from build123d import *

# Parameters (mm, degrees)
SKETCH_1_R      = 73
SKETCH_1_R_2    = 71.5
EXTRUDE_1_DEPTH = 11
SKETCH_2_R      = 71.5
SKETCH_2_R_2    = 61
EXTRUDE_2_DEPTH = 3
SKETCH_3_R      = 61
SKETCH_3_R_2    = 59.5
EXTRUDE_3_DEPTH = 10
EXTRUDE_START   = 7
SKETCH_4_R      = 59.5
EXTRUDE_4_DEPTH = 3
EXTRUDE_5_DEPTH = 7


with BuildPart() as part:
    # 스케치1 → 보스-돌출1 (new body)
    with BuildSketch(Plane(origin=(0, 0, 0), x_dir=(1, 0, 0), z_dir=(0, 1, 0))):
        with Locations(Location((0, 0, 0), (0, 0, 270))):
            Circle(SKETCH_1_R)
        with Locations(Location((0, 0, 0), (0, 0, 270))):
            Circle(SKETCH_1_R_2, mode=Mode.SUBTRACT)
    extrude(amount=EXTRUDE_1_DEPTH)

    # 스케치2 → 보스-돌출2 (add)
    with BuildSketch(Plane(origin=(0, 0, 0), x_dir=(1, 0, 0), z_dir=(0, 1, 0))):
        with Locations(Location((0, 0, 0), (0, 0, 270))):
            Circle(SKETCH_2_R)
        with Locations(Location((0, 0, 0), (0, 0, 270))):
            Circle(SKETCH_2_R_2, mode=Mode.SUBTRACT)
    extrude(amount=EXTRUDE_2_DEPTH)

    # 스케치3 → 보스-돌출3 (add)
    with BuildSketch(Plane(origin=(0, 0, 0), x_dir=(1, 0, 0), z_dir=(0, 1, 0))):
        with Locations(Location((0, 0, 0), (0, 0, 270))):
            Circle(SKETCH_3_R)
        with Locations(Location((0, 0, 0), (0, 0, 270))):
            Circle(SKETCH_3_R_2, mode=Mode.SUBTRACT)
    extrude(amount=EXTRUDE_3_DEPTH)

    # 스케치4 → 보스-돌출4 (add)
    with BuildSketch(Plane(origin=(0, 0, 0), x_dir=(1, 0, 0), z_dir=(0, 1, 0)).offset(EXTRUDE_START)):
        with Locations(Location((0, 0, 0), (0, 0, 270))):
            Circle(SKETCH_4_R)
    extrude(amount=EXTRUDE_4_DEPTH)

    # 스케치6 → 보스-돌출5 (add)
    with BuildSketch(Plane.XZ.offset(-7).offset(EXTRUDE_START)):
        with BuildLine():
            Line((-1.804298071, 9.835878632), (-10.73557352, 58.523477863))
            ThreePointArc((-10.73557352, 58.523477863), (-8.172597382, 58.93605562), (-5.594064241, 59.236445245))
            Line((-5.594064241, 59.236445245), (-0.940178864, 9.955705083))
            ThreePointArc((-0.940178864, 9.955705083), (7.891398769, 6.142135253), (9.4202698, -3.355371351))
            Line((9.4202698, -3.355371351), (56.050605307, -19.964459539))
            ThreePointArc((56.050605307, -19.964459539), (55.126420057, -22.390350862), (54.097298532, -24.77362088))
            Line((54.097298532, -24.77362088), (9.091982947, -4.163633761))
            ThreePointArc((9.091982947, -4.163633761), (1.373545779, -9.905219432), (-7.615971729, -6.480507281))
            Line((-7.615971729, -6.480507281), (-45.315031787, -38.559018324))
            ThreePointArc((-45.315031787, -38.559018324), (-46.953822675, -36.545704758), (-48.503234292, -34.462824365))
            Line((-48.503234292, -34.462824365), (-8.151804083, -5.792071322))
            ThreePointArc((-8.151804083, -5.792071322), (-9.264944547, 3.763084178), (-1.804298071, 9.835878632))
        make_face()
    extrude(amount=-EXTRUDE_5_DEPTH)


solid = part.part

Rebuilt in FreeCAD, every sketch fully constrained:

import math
import FreeCAD as App
import Part
import Sketcher

V = App.Vector
Q = App.Units.Quantity

doc = App.newDocument("Part")
body = doc.addObject("PartDesign::Body", "Body")

# Sketch on XZ plane
sketch1 = body.newObject("Sketcher::SketchObject", "Sketch")
sketch1.AttachmentSupport = (doc.getObject("XZ_Plane"), [""])
sketch1.MapMode = "FlatFace"
sketch1.addGeometry([
    Part.Circle(V(0, 0, 0), V(0, 0, 1), 73),
    Part.Circle(V(0, 0, 0), V(0, 0, 1), 72),
], False)
sketch1.addConstraint([
    Sketcher.Constraint("Coincident", 0, 3, -1, 1),
    Sketcher.Constraint("Coincident", 1, 3, -1, 1),
    Sketcher.Constraint("Diameter", 0, Q("146 mm")),
    Sketcher.Constraint("Diameter", 1, Q("143 mm")),
])
pad1 = body.newObject("PartDesign::Pad", "Pad")
pad1.Profile = sketch1
pad1.Length = 11
pad1.Reversed = True

# Sketch on XZ plane
sketch2 = body.newObject("Sketcher::SketchObject", "Sketch001")
sketch2.AttachmentSupport = (doc.getObject("XZ_Plane"), [""])
sketch2.MapMode = "FlatFace"
sketch2.addGeometry([
    Part.Circle(V(0, 0, 0), V(0, 0, 1), 72),
    Part.Circle(V(0, 0, 0), V(0, 0, 1), 61),
], False)
sketch2.addConstraint([
    Sketcher.Constraint("Coincident", 0, 3, -1, 1),
    Sketcher.Constraint("Coincident", 1, 3, -1, 1),
    Sketcher.Constraint("Diameter", 0, Q("143 mm")),
    Sketcher.Constraint("Diameter", 1, Q("122 mm")),
])
pad2 = body.newObject("PartDesign::Pad", "Pad001")
pad2.Profile = sketch2
pad2.Length = 3
pad2.Reversed = True

# Sketch on XZ plane
sketch3 = body.newObject("Sketcher::SketchObject", "Sketch002")
sketch3.AttachmentSupport = (doc.getObject("XZ_Plane"), [""])
sketch3.MapMode = "FlatFace"
sketch3.addGeometry([
    Part.Circle(V(0, 0, 0), V(0, 0, 1), 61),
    Part.Circle(V(0, 0, 0), V(0, 0, 1), 60),
], False)
sketch3.addConstraint([
    Sketcher.Constraint("Coincident", 0, 3, -1, 1),
    Sketcher.Constraint("Coincident", 1, 3, -1, 1),
    Sketcher.Constraint("Diameter", 0, Q("122 mm")),
    Sketcher.Constraint("Diameter", 1, Q("119 mm")),
])
pad3 = body.newObject("PartDesign::Pad", "Pad002")
pad3.Profile = sketch3
pad3.Length = 10
pad3.Reversed = True

# Sketch on XZ plane
sketch4 = body.newObject("Sketcher::SketchObject", "Sketch003")
sketch4.AttachmentSupport = (doc.getObject("XZ_Plane"), [""])
sketch4.MapMode = "FlatFace"
sketch4.AttachmentOffset = App.Placement(V(0, 0, -7), App.Rotation())
sketch4.addGeometry(Part.Circle(V(0, 0, 0), V(0, 0, 1), 60), False)
sketch4.addConstraint([
    Sketcher.Constraint("Coincident", 0, 3, -1, 1),
    Sketcher.Constraint("Diameter", 0, Q("119 mm")),
])
pad4 = body.newObject("PartDesign::Pad", "Pad003")
pad4.Profile = sketch4
pad4.Length = 3
pad4.Reversed = True

# Sketch on XZ plane
sketch5 = body.newObject("Sketcher::SketchObject", "Sketch004")
sketch5.AttachmentSupport = (doc.getObject("XZ_Plane"), [""])
sketch5.MapMode = "FlatFace"
sketch5.addGeometry([
    Part.LineSegment(V(-11, 59, 0), V(-2, 10, 0)),  # 0
    Part.ArcOfCircle(Part.Circle(V(0, 0, 0), V(0, 0, 1), 10), math.radians(100), math.radians(215)),  # 1
    Part.LineSegment(V(-8, -6, 0), V(-49, -34, 0)),  # 2
    Part.ArcOfCircle(Part.Circle(V(0, 0, 0), V(0, 0, 1), 59), math.radians(-144.61), math.radians(-139.61)),  # 3
    Part.LineSegment(V(-45, -39, 0), V(-8, -6, 0)),  # 4
    Part.ArcOfCircle(Part.Circle(V(0, 0, 0), V(0, 0, 1), 10), math.radians(-140), math.radians(-25)),  # 5
    Part.LineSegment(V(9, -4, 0), V(54, -25, 0)),  # 6
    Part.ArcOfCircle(Part.Circle(V(0, 0, 0), V(0, 0, 1), 59), math.radians(-24.61), math.radians(-19.61)),  # 7
    Part.LineSegment(V(56, -20, 0), V(9, -3, 0)),  # 8
    Part.ArcOfCircle(Part.Circle(V(0, 0, 0), V(0, 0, 1), 10), math.radians(-20), math.radians(95)),  # 9
    Part.LineSegment(V(-1, 10, 0), V(-6, 59, 0)),  # 10
    Part.ArcOfCircle(Part.Circle(V(0, 0, 0), V(0, 0, 1), 59), math.radians(95.39), math.radians(100.39)),  # 11
], False)
sketch5.addConstraint([
    Sketcher.Constraint("Coincident", 0, 2, 1, 1),
    Sketcher.Constraint("Coincident", 1, 2, 2, 1),
    Sketcher.Constraint("Coincident", 2, 2, 3, 1),
    Sketcher.Constraint("Coincident", 3, 2, 4, 1),
    Sketcher.Constraint("Coincident", 4, 2, 5, 1),
    Sketcher.Constraint("Coincident", 5, 2, 6, 1),
    Sketcher.Constraint("Coincident", 6, 2, 7, 1),
    Sketcher.Constraint("Coincident", 7, 2, 8, 1),
    Sketcher.Constraint("Coincident", 8, 2, 9, 1),
    Sketcher.Constraint("Coincident", 9, 2, 10, 1),
    Sketcher.Constraint("Coincident", 10, 2, 11, 1),
    Sketcher.Constraint("Coincident", 11, 2, 0, 1),
    Sketcher.Constraint("Coincident", 1, 3, -1, 1),
    Sketcher.Constraint("Coincident", 3, 3, -1, 1),
    Sketcher.Constraint("Coincident", 5, 3, -1, 1),
    Sketcher.Constraint("Coincident", 7, 3, -1, 1),
    Sketcher.Constraint("Coincident", 9, 3, -1, 1),
    Sketcher.Constraint("Coincident", 11, 3, -1, 1),
    Sketcher.Constraint("Equal", 1, 5),
    Sketcher.Constraint("Equal", 3, 7),
    Sketcher.Constraint("Equal", 5, 9),
    Sketcher.Constraint("Equal", 7, 11),
    Sketcher.Constraint("Radius", 1, Q("10 mm")),
    Sketcher.Constraint("Radius", 3, Q("59.499999 mm")),
    Sketcher.Constraint("DistanceX", 0, 2, -1, 1, Q("1.804298 mm")),
    Sketcher.Constraint("DistanceX", -1, 1, 6, 2, Q("54.097299 mm")),
    Sketcher.Constraint("DistanceY", 0, 2, 11, 2, Q("48.687599 mm")),
    Sketcher.Constraint("DistanceY", 1, 2, -1, 1, Q("5.792071 mm")),
    Sketcher.Constraint("DistanceX", 3, 2, -1, 1, Q("45.315032 mm")),
    Sketcher.Constraint("DistanceX", 4, 2, -1, 1, Q("7.615972 mm")),
    Sketcher.Constraint("DistanceY", 7, 2, -1, 1, Q("19.96446 mm")),
    Sketcher.Constraint("DistanceX", -1, 1, 8, 2, Q("9.42027 mm")),
    Sketcher.Constraint("DistanceX", 9, 2, -1, 1, Q("0.940179 mm")),
    Sketcher.Constraint("DistanceX", 2, 2, 1, 2, Q("40.35143 mm")),
    Sketcher.Constraint("DistanceY", 9, 2, 10, 2, Q("49.28074 mm")),
    Sketcher.Constraint("DistanceX", -1, 1, 5, 2, Q("9.091983 mm")),
])
pad5 = body.newObject("PartDesign::Pad", "Pad004")
pad5.Profile = sketch5
pad5.Length = 7
pad5.Reversed = True

doc.recompute()
